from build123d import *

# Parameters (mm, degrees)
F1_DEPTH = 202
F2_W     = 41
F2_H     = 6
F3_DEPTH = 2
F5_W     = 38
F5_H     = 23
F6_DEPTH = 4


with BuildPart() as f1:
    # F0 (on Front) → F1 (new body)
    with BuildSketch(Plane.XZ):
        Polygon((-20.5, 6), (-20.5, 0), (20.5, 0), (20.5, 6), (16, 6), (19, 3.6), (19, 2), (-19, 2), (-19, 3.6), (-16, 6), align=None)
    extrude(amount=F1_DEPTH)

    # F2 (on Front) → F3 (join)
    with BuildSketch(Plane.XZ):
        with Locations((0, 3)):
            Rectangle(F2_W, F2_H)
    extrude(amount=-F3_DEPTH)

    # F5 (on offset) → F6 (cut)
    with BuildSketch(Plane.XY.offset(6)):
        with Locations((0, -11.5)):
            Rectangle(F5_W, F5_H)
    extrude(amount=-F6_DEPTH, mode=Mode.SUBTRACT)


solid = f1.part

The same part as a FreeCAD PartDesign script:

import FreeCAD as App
import Part
import Sketcher
from FreeCAD import Vector
Q = App.Units.Quantity


def add_polygon(sketch, points):
    """Adds a closed chain of lines whose ends are joined by coincident constraints."""
    first, n = sketch.GeometryCount, len(points)
    for a, b in zip(points, points[1:] + points[:1]):
        sketch.addGeometry(Part.LineSegment(App.Vector(*a, 0), App.Vector(*b, 0)), False)
    for i in range(n):
        sketch.addConstraint(Sketcher.Constraint("Coincident", first + i, 2, first + (i + 1) % n, 1))

doc = App.newDocument("Part")
body = doc.addObject("PartDesign::Body", "Body")

sketch1 = doc.addObject("Sketcher::SketchObject", "Sketch")
body.addObject(sketch1)
sketch1.AttachmentSupport = (doc.XZ_Plane, [""])
sketch1.MapMode = "FlatFace"
add_polygon(sketch1, [(-20.5, 6), (-20.5, 0), (20.5, 0), (20.5, 6), (16, 6), (19, 3.6), (19, 2), (-19, 2), (-19, 3.6), (-16, 6)])
sketch1.addConstraint([
    Sketcher.Constraint("Vertical", 0),
    Sketcher.Constraint("Horizontal", 1),
    Sketcher.Constraint("Vertical", 2),
    Sketcher.Constraint("Horizontal", 3),
    Sketcher.Constraint("Vertical", 5),
    Sketcher.Constraint("Horizontal", 6),
    Sketcher.Constraint("Vertical", 7),
    Sketcher.Constraint("Horizontal", 9),
    Sketcher.Constraint("Symmetric", 0, 2, 1, 2, -1, 1),
    Sketcher.Constraint("Symmetric", 4, 2, 7, 2, -2),
    Sketcher.Constraint("Symmetric", 3, 2, 8, 2, -2),
    Sketcher.Constraint("DistanceX", 1, 1, 1, 2, Q("41 mm")),
    Sketcher.Constraint("DistanceX", 6, 2, 6, 1, Q("38 mm")),
    Sketcher.Constraint("DistanceY", 0, 2, 0, 1, Q("6 mm")),
    Sketcher.Constraint("DistanceX", 3, 2, 3, 1, Q("4.5 mm")),
    Sketcher.Constraint("DistanceY", 5, 2, 5, 1, Q("1.6 mm")),
    Sketcher.Constraint("DistanceY", -1, 1, 5, 2, Q("2 mm")),
])
pad1 = doc.addObject("PartDesign::Pad", "Pad")
body.addObject(pad1)
pad1.Profile = sketch1
pad1.Length = 202

sketch2 = doc.addObject("Sketcher::SketchObject", "Sketch001")
body.addObject(sketch2)
sketch2.AttachmentSupport = (doc.XZ_Plane, [""])
sketch2.MapMode = "FlatFace"
add_polygon(sketch2, [(-20.5, 6), (-20.5, 0), (20.5, 0), (20.5, 6)])
sketch2.addConstraint([
    Sketcher.Constraint("Vertical", 0),
    Sketcher.Constraint("Horizontal", 1),
    Sketcher.Constraint("Vertical", 2),
    Sketcher.Constraint("Horizontal", 3),
    Sketcher.Constraint("Symmetric", 0, 2, 1, 2, -1, 1),
    Sketcher.Constraint("DistanceX", 1, 1, 1, 2, Q("41 mm")),
    Sketcher.Constraint("DistanceY", 0, 2, 0, 1, Q("6 mm")),
])
pad2 = doc.addObject("PartDesign::Pad", "Pad001")
body.addObject(pad2)
pad2.Profile = sketch2
pad2.Length = 2
pad2.Reversed = True

sketch3 = doc.addObject("Sketcher::SketchObject", "Sketch002")
body.addObject(sketch3)
sketch3.AttachmentSupport = (doc.XY_Plane, [""])
sketch3.MapMode = "FlatFace"
sketch3.AttachmentOffset = App.Placement(Vector(0, 0, 6), App.Rotation())
add_polygon(sketch3, [(-19, 0), (-19, -23), (19, -23), (19, 0)])
sketch3.addConstraint([
    Sketcher.Constraint("Vertical", 0),
    Sketcher.Constraint("Horizontal", 1),
    Sketcher.Constraint("Vertical", 2),
    Sketcher.Constraint("Horizontal", 3),
    Sketcher.Constraint("Symmetric", 2, 2, 3, 2, -1, 1),
    Sketcher.Constraint("DistanceX", 1, 1, 1, 2, Q("38 mm")),
    Sketcher.Constraint("DistanceY", 0, 2, 0, 1, Q("23 mm")),
])
pocket1 = doc.addObject("PartDesign::Pocket", "Pocket")
body.addObject(pocket1)
pocket1.Profile = sketch3
pocket1.Length = 4

doc.recompute()
